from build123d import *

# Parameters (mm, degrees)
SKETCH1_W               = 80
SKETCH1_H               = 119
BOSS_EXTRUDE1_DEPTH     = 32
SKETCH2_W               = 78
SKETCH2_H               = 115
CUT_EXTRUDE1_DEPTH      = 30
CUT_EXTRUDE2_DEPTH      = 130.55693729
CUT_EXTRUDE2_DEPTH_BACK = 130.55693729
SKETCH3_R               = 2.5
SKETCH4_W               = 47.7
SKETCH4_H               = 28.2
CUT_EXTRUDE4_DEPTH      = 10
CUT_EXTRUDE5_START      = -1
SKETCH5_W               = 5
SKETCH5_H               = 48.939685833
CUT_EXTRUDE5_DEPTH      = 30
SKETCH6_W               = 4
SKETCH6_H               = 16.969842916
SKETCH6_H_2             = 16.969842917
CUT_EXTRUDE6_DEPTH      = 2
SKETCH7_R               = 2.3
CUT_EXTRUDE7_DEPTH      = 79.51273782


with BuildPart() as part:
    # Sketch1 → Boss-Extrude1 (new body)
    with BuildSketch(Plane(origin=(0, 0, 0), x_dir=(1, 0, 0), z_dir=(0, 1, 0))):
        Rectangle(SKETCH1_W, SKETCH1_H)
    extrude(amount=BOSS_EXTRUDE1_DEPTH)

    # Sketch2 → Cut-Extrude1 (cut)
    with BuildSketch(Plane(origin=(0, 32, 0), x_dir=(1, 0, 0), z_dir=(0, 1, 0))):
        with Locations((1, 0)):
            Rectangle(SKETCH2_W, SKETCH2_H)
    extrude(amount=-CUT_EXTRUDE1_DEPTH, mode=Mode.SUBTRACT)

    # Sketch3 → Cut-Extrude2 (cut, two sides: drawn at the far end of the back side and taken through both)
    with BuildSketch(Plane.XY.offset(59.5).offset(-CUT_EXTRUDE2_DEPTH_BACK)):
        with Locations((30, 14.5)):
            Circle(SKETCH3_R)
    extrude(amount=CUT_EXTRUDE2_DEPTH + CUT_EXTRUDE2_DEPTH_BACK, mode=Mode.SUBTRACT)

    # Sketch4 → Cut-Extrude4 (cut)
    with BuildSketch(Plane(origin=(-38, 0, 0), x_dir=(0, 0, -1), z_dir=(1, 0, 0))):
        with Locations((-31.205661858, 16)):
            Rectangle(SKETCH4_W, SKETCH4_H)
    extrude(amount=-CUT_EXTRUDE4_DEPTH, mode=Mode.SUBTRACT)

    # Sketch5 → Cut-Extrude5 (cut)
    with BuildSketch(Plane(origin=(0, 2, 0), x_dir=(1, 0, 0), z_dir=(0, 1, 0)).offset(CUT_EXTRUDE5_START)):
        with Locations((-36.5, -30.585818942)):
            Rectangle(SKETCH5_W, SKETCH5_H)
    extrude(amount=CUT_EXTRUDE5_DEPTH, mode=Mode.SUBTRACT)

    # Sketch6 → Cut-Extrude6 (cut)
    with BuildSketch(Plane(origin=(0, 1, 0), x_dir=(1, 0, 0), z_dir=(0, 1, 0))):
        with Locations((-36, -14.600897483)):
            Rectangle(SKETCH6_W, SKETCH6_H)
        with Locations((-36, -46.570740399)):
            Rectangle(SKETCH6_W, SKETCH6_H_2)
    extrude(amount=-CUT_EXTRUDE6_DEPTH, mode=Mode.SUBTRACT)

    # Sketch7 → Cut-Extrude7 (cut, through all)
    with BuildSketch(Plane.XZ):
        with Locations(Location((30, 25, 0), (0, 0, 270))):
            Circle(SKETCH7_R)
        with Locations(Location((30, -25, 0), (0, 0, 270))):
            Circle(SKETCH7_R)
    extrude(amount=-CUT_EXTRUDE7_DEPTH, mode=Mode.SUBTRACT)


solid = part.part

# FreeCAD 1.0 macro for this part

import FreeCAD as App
import Part
import Sketcher
Q = App.Units.Quantity


def add_polygon(sketch, points):
    """Adds a closed chain of lines whose ends are joined by coincident constraints."""
    first, n = sketch.GeometryCount, len(points)
    for a, b in zip(points, points[1:] + points[:1]):
        sketch.addGeometry(Part.LineSegment(App.Vector(*a, 0), App.Vector(*b, 0)), False)
    for i in range(n):
        sketch.addConstraint(Sketcher.Constraint("Coincident", first + i, 2, first + (i + 1) % n, 1))

doc = App.newDocument("Part")
body = doc.addObject("PartDesign::Body", "Body")

# Sketch on XZ plane
sketch1 = doc.addObject("Sketcher::SketchObject", "Sketch")
body.addObject(sketch1)
sketch1.AttachmentSupport = (doc.XZ_Plane, [""])
sketch1.MapMode = "FlatFace"
add_polygon(sketch1, [(-40, -60), (-40, 60), (40, 60), (40, -60)])  # lines 0-3
sketch1.addConstraint(Sketcher.Constraint("Vertical", 0))
sketch1.addConstraint(Sketcher.Constraint("Horizontal", 1))
sketch1.addConstraint(Sketcher.Constraint("Vertical", 2))
sketch1.addConstraint(Sketcher.Constraint("Horizontal", 3))
sketch1.addConstraint(Sketcher.Constraint("Symmetric", 0, 2, 2, 2, -1, 1))
sketch1.addConstraint(Sketcher.Constraint("DistanceX", 1, 1, 1, 2, Q("80 mm")))
sketch1.addConstraint(Sketcher.Constraint("DistanceY", 0, 1, 0, 2, Q("119 mm")))
pad1 = doc.addObject("PartDesign::Pad", "Pad")
body.addObject(pad1)
pad1.Profile = sketch1
pad1.Length = 32
pad1.Reversed = True

# Sketch on XZ plane
sketch2 = doc.addObject("Sketcher::SketchObject", "Sketch001")
body.addObject(sketch2)
sketch2.AttachmentSupport = (doc.XZ_Plane, [""])
sketch2.MapMode = "FlatFace"
sketch2.AttachmentOffset = App.Placement(App.Vector(0, 0, -32), App.Rotation())
add_polygon(sketch2, [(-38, -58), (-38, 58), (40, 58), (40, -58)])  # lines 0-3
sketch2.addConstraint(Sketcher.Constraint("Vertical", 0))
sketch2.addConstraint(Sketcher.Constraint("Horizontal", 1))
sketch2.addConstraint(Sketcher.Constraint("Vertical", 2))
sketch2.addConstraint(Sketcher.Constraint("Horizontal", 3))
sketch2.addConstraint(Sketcher.Constraint("DistanceX", 1, 1, 1, 2, Q("78 mm")))
sketch2.addConstraint(Sketcher.Constraint("DistanceY", 0, 1, 0, 2, Q("115 mm")))
sketch2.addConstraint(Sketcher.Constraint("DistanceX", 0, 2, -1, 1, Q("38 mm")))
sketch2.addConstraint(Sketcher.Constraint("DistanceY", -1, 1, 0, 2, Q("57.5 mm")))
pocket1 = doc.addObject("PartDesign::Pocket", "Pocket")
body.addObject(pocket1)
pocket1.Profile = sketch2
pocket1.Length = 30
pocket1.Reversed = True

# Sketch on XY plane
sketch3 = doc.addObject("Sketcher::SketchObject", "Sketch002")
body.addObject(sketch3)
sketch3.AttachmentSupport = (doc.XY_Plane, [""])
sketch3.MapMode = "FlatFace"
sketch3.AttachmentOffset = App.Placement(App.Vector(0, 0, 59.5), App.Rotation())
sketch3.addGeometry(Part.Circle(App.Vector(30, 14.5, 0), App.Vector(0, 0, 1), 2.5), False)
sketch3.addConstraint(Sketcher.Constraint("Diameter", 0, Q("5 mm")))
sketch3.addConstraint(Sketcher.Constraint("DistanceX", -1, 1, 0, 3, Q("30 mm")))
sketch3.addConstraint(Sketcher.Constraint("DistanceY", -1, 1, 0, 3, Q("14.5 mm")))
pocket2 = doc.addObject("PartDesign::Pocket", "Pocket001")
body.addObject(pocket2)
pocket2.Profile = sketch3
pocket2.Type = "ThroughAll"
pocket2.Midplane = True

# Sketch on YZ plane
sketch4 = doc.addObject("Sketcher::SketchObject", "Sketch003")
body.addObject(sketch4)
sketch4.AttachmentSupport = (doc.YZ_Plane, [""])
sketch4.MapMode = "FlatFace"
sketch4.AttachmentOffset = App.Placement(App.Vector(0, 0, -38), App.Rotation())
add_polygon(sketch4, [(30, 55), (2, 55), (2, 7), (30, 7)])  # lines 0-3
sketch4.addConstraint(Sketcher.Constraint("Horizontal", 0))
sketch4.addConstraint(Sketcher.Constraint("Vertical", 1))
sketch4.addConstraint(Sketcher.Constraint("Horizontal", 2))
sketch4.addConstraint(Sketcher.Constraint("Vertical", 3))
sketch4.addConstraint(Sketcher.Constraint("DistanceX", 0, 2, 0, 1, Q("28.2 mm")))
sketch4.addConstraint(Sketcher.Constraint("DistanceY", 1, 2, 1, 1, Q("47.7 mm")))
sketch4.addConstraint(Sketcher.Constraint("DistanceX", -1, 1, 0, 2, Q("1.9 mm")))
sketch4.addConstraint(Sketcher.Constraint("DistanceY", -1, 1, 0, 2, Q("55.055662 mm")))
pocket3 = doc.addObject("PartDesign::Pocket", "Pocket002")
body.addObject(pocket3)
pocket3.Profile = sketch4
pocket3.Length = 10

# Sketch on XZ plane
sketch5 = doc.addObject("Sketcher::SketchObject", "Sketch004")
body.addObject(sketch5)
sketch5.AttachmentSupport = (doc.XZ_Plane, [""])
sketch5.MapMode = "FlatFace"
sketch5.AttachmentOffset = App.Placement(App.Vector(0, 0, -1), App.Rotation())
add_polygon(sketch5, [(-39, 6), (-39, 55), (-34, 55), (-34, 6)])  # lines 0-3
sketch5.addConstraint(Sketcher.Constraint("Vertical", 0))
sketch5.addConstraint(Sketcher.Constraint("Horizontal", 1))
sketch5.addConstraint(Sketcher.Constraint("Vertical", 2))
sketch5.addConstraint(Sketcher.Constraint("Horizontal", 3))
sketch5.addConstraint(Sketcher.Constraint("DistanceX", 1, 1, 1, 2, Q("5 mm")))
sketch5.addConstraint(Sketcher.Constraint("DistanceX", 0, 2, -1, 1, Q("39 mm")))
sketch5.addConstraint(Sketcher.Constraint("DistanceY", 0, 1, 0, 2, Q("48.939686 mm")))
sketch5.addConstraint(Sketcher.Constraint("DistanceY", -1, 1, 0, 2, Q("55.055662 mm")))
pocket4 = doc.addObject("PartDesign::Pocket", "Pocket003")
body.addObject(pocket4)
pocket4.Profile = sketch5
pocket4.Length = 30

# Sketch on XZ plane
sketch6 = doc.addObject("Sketcher::SketchObject", "Sketch005")
body.addObject(sketch6)
sketch6.AttachmentSupport = (doc.XZ_Plane, [""])
sketch6.MapMode = "FlatFace"
sketch6.AttachmentOffset = App.Placement(App.Vector(0, 0, -1), App.Rotation())
add_polygon(sketch6, [(-38, 6.1), (-38, 23.1), (-34, 23.1), (-34, 6.1)])  # lines 0-3
add_polygon(sketch6, [(-38, 38.1), (-38, 55.1), (-34, 55.1), (-34, 38.1)])  # lines 4-7
sketch6.addConstraint(Sketcher.Constraint("Vertical", 0))
sketch6.addConstraint(Sketcher.Constraint("Horizontal", 1))
sketch6.addConstraint(Sketcher.Constraint("Vertical", 2))
sketch6.addConstraint(Sketcher.Constraint("Horizontal", 3))
sketch6.addConstraint(Sketcher.Constraint("Vertical", 4))
sketch6.addConstraint(Sketcher.Constraint("Horizontal", 5))
sketch6.addConstraint(Sketcher.Constraint("Vertical", 6))
sketch6.addConstraint(Sketcher.Constraint("Horizontal", 7))
sketch6.addConstraint(Sketcher.Constraint("Vertical", 3, 2, 4, 2))
sketch6.addConstraint(Sketcher.Constraint("Vertical", 2, 2, 5, 2))
sketch6.addConstraint(Sketcher.Constraint("Equal", 2, 4))
sketch6.addConstraint(Sketcher.Constraint("DistanceX", 1, 1, 1, 2, Q("4 mm")))
sketch6.addConstraint(Sketcher.Constraint("DistanceX", 0, 2, -1, 1, Q("38 mm")))
sketch6.addConstraint(Sketcher.Constraint("DistanceY", 1, 2, 6, 2, Q("15 mm")))
sketch6.addConstraint(Sketcher.Constraint("DistanceY", 0, 1, 0, 2, Q("16.969843 mm")))
sketch6.addConstraint(Sketcher.Constraint("DistanceY", -1, 1, 0, 2, Q("23.085819 mm")))
pocket5 = doc.addObject("PartDesign::Pocket", "Pocket004")
body.addObject(pocket5)
pocket5.Profile = sketch6
pocket5.Length = 2
pocket5.Reversed = True

# Sketch on XZ plane
sketch7 = doc.addObject("Sketcher::SketchObject", "Sketch006")
body.addObject(sketch7)
sketch7.AttachmentSupport = (doc.XZ_Plane, [""])
sketch7.MapMode = "FlatFace"
sketch7.addGeometry(Part.Circle(App.Vector(30, 25, 0), App.Vector(0, 0, 1), 2.3), False)
sketch7.addGeometry(Part.Circle(App.Vector(30, -25, 0), App.Vector(0, 0, 1), 2.3), False)
sketch7.addConstraint(Sketcher.Constraint("Equal", 0, 1))
sketch7.addConstraint(Sketcher.Constraint("Symmetric", 0, 3, 1, 3, -1))
sketch7.addConstraint(Sketcher.Constraint("Diameter", 0, Q("4.6 mm")))
sketch7.addConstraint(Sketcher.Constraint("DistanceX", -1, 1, 0, 3, Q("30 mm")))
sketch7.addConstraint(Sketcher.Constraint("DistanceY", -1, 1, 0, 3, Q("25 mm")))
pocket6 = doc.addObject("PartDesign::Pocket", "Pocket005")
body.addObject(pocket6)
pocket6.Profile = sketch7
pocket6.Type = "ThroughAll"

doc.recompute()
